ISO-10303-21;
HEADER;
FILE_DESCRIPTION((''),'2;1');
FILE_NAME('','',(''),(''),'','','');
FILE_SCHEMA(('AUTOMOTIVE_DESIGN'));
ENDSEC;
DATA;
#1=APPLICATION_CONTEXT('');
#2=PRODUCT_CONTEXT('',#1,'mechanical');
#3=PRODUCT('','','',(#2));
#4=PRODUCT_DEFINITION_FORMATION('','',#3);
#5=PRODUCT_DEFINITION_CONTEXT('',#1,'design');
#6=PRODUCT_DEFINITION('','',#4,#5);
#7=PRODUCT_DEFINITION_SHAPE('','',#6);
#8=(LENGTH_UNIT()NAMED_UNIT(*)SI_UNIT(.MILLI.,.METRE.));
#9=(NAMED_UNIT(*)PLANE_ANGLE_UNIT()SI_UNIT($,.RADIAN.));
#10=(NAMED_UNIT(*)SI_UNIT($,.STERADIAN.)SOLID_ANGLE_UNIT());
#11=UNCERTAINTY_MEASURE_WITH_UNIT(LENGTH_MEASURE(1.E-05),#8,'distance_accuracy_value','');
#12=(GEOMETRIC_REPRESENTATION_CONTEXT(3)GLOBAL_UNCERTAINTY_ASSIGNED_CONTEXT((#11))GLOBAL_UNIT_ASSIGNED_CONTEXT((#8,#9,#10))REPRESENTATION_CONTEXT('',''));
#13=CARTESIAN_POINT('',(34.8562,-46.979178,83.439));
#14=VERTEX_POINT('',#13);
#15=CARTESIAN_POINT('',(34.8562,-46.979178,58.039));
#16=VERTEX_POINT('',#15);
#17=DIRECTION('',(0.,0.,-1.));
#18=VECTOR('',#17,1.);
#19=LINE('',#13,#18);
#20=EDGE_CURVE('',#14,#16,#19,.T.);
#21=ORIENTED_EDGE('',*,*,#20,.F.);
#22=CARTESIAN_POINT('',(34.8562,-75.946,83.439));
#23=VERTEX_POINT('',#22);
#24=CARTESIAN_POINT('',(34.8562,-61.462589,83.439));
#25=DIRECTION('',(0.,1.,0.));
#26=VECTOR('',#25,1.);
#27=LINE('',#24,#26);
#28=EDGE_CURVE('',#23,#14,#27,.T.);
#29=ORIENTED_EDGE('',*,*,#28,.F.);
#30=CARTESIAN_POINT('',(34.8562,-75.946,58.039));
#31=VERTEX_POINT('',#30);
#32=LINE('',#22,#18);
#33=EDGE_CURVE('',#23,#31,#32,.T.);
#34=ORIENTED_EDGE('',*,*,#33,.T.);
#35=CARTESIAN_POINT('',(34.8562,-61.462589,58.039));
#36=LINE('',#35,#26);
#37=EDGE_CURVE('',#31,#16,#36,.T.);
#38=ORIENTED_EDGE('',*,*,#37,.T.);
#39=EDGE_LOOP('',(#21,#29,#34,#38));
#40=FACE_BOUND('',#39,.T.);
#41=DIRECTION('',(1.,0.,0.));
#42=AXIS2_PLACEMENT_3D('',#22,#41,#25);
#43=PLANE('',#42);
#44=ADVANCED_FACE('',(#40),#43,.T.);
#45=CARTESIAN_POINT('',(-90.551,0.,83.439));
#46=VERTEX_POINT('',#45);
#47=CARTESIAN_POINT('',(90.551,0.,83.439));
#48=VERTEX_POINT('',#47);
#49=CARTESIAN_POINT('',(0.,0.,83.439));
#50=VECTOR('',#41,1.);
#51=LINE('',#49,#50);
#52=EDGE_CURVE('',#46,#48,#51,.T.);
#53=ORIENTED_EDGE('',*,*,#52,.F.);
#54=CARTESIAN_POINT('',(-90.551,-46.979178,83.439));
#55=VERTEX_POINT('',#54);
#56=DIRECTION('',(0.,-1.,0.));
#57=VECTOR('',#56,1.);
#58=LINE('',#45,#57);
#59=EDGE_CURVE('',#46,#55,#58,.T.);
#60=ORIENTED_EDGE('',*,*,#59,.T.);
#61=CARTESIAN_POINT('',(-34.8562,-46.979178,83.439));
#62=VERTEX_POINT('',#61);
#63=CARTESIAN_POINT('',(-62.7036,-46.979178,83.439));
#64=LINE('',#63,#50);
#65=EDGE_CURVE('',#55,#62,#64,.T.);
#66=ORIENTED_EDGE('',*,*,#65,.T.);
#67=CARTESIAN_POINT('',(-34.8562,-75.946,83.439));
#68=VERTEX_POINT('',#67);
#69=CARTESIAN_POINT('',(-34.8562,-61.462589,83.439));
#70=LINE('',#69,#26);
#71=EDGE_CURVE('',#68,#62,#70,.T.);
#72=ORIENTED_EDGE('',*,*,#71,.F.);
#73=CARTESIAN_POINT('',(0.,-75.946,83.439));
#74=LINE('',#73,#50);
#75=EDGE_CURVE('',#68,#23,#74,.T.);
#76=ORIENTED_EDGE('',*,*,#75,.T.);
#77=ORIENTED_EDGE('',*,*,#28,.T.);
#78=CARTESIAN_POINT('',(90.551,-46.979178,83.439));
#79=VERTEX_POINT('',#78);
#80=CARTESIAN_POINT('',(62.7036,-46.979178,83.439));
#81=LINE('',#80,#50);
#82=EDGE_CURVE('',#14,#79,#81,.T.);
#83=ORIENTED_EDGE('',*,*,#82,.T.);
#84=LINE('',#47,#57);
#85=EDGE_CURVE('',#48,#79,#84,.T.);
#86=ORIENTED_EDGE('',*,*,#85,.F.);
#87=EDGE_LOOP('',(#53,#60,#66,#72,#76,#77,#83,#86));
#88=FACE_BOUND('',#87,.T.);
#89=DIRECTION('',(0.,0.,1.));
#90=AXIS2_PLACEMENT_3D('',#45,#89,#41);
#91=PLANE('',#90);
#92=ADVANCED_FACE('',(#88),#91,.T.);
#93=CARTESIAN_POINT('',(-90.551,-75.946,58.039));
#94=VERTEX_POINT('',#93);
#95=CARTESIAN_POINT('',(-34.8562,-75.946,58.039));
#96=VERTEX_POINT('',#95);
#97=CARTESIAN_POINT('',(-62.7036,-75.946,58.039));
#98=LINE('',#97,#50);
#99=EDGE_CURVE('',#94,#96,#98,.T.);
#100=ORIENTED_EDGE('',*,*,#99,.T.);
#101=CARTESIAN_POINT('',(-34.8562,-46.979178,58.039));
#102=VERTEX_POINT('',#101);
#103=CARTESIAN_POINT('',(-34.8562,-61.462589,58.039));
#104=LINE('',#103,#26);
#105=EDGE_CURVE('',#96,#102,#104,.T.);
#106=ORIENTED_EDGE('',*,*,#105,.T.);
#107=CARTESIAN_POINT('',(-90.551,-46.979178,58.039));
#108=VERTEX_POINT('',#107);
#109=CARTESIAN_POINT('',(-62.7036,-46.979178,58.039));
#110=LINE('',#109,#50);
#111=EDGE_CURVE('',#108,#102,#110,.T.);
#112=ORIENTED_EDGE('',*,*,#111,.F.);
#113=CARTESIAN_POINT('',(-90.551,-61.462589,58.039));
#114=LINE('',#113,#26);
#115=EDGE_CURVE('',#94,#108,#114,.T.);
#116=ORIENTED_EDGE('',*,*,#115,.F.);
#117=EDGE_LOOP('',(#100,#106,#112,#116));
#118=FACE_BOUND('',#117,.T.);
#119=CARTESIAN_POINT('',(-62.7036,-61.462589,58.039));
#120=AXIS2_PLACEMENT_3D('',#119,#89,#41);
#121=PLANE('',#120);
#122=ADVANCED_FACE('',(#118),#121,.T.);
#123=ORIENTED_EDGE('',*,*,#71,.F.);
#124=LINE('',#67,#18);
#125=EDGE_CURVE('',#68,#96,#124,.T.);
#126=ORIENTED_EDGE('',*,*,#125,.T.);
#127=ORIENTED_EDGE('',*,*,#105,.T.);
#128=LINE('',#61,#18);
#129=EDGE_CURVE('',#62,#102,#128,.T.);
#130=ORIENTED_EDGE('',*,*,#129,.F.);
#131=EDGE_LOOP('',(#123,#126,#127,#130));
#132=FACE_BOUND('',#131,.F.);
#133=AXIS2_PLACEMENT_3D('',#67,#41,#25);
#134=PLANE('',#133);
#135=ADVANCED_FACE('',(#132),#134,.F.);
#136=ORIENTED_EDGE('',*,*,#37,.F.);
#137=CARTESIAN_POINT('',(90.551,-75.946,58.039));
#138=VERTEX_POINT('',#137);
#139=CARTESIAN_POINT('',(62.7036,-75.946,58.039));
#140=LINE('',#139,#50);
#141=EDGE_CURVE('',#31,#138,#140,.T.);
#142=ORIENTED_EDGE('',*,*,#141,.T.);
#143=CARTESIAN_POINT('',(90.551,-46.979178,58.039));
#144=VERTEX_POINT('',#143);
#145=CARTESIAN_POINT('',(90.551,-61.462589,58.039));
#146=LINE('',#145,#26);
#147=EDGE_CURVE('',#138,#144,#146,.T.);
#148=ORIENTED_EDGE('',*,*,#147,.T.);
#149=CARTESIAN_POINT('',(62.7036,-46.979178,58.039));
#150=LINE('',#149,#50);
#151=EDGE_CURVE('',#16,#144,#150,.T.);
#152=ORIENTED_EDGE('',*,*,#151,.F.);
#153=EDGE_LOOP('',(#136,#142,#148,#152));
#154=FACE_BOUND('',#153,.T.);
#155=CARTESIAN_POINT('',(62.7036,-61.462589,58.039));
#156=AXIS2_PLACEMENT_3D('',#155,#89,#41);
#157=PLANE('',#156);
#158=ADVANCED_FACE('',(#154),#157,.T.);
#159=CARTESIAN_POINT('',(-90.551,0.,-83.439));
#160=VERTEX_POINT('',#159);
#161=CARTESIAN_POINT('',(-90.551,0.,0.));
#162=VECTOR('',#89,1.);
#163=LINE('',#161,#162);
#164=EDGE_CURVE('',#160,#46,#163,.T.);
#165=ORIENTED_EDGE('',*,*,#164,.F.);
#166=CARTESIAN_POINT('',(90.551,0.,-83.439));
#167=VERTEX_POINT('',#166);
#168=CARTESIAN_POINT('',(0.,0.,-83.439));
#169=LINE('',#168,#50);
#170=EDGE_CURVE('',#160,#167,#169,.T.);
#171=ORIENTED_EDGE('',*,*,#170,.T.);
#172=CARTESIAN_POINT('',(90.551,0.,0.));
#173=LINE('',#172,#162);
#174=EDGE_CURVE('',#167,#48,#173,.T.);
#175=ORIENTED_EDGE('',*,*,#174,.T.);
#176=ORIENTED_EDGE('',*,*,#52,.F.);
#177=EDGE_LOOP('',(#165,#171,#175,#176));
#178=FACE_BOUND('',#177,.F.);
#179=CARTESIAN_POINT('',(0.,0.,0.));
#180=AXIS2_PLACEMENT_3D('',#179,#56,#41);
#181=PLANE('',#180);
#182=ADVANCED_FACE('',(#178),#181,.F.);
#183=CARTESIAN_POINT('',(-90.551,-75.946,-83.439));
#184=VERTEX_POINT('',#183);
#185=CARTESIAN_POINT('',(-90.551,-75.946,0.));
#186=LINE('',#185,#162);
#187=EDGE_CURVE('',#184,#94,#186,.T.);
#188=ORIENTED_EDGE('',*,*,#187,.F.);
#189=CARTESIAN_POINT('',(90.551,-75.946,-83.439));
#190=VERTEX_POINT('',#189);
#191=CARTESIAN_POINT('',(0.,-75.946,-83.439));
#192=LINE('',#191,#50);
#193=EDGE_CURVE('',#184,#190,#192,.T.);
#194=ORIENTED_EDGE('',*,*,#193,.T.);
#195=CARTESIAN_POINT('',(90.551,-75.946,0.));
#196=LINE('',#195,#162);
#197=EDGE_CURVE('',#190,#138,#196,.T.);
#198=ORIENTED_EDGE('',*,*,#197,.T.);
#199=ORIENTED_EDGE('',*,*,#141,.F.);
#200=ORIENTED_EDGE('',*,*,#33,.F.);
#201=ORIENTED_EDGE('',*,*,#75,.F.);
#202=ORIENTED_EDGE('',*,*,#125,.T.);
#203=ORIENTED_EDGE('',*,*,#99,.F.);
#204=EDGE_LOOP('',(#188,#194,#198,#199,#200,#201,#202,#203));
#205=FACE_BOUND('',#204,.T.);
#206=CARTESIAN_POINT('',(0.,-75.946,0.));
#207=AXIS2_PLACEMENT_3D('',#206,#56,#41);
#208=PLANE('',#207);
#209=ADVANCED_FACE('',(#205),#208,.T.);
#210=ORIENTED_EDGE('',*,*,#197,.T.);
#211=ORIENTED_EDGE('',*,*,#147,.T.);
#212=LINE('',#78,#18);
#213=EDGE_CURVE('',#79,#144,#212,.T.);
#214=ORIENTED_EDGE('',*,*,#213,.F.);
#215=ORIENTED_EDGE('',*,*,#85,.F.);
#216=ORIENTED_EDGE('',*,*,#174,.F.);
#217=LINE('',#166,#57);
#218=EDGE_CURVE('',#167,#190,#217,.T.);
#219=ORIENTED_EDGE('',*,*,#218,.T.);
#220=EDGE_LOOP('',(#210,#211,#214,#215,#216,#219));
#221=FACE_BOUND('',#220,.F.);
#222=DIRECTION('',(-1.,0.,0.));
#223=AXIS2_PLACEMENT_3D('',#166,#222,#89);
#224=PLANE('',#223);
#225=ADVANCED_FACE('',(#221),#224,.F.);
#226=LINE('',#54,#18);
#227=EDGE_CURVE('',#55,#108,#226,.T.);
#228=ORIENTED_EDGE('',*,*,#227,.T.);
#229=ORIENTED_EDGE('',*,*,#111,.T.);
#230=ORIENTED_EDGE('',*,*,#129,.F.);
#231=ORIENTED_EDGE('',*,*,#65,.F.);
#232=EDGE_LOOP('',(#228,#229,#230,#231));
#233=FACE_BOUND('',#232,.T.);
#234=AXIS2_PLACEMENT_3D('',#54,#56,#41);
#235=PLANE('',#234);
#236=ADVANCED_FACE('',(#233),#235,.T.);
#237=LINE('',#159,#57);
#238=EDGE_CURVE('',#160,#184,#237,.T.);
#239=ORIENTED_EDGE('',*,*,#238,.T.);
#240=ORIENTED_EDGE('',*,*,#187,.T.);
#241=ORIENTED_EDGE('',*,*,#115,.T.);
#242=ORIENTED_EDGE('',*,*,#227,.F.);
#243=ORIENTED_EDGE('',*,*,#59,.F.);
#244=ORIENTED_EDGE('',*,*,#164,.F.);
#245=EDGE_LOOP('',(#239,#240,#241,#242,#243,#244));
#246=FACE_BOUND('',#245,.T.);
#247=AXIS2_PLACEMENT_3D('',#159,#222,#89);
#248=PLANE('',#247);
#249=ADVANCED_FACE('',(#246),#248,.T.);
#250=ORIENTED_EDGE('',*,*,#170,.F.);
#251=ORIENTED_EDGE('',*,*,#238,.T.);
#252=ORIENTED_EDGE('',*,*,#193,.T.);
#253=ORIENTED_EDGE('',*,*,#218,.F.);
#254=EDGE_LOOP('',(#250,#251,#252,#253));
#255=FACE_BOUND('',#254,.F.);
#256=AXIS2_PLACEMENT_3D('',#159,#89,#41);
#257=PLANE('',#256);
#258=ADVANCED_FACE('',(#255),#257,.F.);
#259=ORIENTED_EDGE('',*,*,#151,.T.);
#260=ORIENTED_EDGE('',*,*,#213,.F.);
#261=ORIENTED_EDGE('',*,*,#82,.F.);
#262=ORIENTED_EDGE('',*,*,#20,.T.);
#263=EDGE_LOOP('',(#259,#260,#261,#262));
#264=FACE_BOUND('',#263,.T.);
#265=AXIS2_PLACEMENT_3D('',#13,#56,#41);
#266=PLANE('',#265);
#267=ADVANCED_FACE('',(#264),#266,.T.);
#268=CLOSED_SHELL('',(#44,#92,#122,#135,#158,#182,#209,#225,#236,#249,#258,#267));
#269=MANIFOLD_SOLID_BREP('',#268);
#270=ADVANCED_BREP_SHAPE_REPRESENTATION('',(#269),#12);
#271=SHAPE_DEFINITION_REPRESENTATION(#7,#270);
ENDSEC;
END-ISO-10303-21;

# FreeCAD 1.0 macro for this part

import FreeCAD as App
import Part
import Sketcher
Q = App.Units.Quantity


def add_polygon(sketch, points):
    """Adds a closed chain of lines whose ends are joined by coincident constraints."""
    first, n = sketch.GeometryCount, len(points)
    for a, b in zip(points, points[1:] + points[:1]):
        sketch.addGeometry(Part.LineSegment(App.Vector(*a, 0), App.Vector(*b, 0)), False)
    for i in range(n):
        sketch.addConstraint(Sketcher.Constraint("Coincident", first + i, 2, first + (i + 1) % n, 1))

doc = App.newDocument("Part")
body = doc.addObject("PartDesign::Body", "Body")

sketch1 = body.newObject("Sketcher::SketchObject", "Sketch")
sketch1.AttachmentSupport = (doc.getObject("XZ_Plane"), [""])
sketch1.MapMode = "FlatFace"
add_polygon(sketch1, [(-91, 83), (-91, -83), (91, -83), (91, 83)])
sketch1.addConstraint(Sketcher.Constraint("Vertical", 0))
sketch1.addConstraint(Sketcher.Constraint("Horizontal", 1))
sketch1.addConstraint(Sketcher.Constraint("Vertical", 2))
sketch1.addConstraint(Sketcher.Constraint("Horizontal", 3))
sketch1.addConstraint(Sketcher.Constraint("Symmetric", 0, 2, 2, 2, -1, 1))
sketch1.addConstraint(Sketcher.Constraint("DistanceX", 1, 1, 1, 2, Q("7.13 in")))
sketch1.addConstraint(Sketcher.Constraint("DistanceY", 0, 2, 0, 1, Q("6.57 in")))
pad1 = body.newObject("PartDesign::Pad", "Pad")
pad1.Profile = sketch1
pad1.Length = Q("2.99 in")

sketch2 = body.newObject("Sketcher::SketchObject", "Sketch001")
sketch2.AttachmentSupport = (doc.getObject("XY_Plane"), [""])
sketch2.MapMode = "FlatFace"
sketch2.AttachmentOffset = App.Placement(App.Vector(0, 0, 3.285 * 25.4), App.Rotation())
add_polygon(sketch2, [(-91, -47), (-91, -76), (-35, -76), (-35, -47)])
add_polygon(sketch2, [(35, -47), (35, -76), (91, -76), (91, -47)])
sketch2.addConstraint(Sketcher.Constraint("Vertical", 0))
sketch2.addConstraint(Sketcher.Constraint("Horizontal", 1))
sketch2.addConstraint(Sketcher.Constraint("Vertical", 2))
sketch2.addConstraint(Sketcher.Constraint("Horizontal", 3))
sketch2.addConstraint(Sketcher.Constraint("Vertical", 4))
sketch2.addConstraint(Sketcher.Constraint("Horizontal", 5))
sketch2.addConstraint(Sketcher.Constraint("Vertical", 6))
sketch2.addConstraint(Sketcher.Constraint("Horizontal", 7))
sketch2.addConstraint(Sketcher.Constraint("Symmetric", 1, 2, 4, 2, -2))
sketch2.addConstraint(Sketcher.Constraint("Symmetric", 3, 2, 6, 2, -2))
sketch2.addConstraint(Sketcher.Constraint("DistanceY", 0, 2, -1, 1, Q("2.99 in")))
sketch2.addConstraint(Sketcher.Constraint("DistanceX", 0, 2, 5, 2, Q("7.13 in")))
sketch2.addConstraint(Sketcher.Constraint("DistanceX", 1, 1, 1, 2, 55.6948))
sketch2.addConstraint(Sketcher.Constraint("DistanceY", 0, 2, 0, 1, 28.966822))
pocket1 = body.newObject("PartDesign::Pocket", "Pocket")
pocket1.Profile = sketch2
pocket1.Length = Q("1 in")

doc.recompute()
